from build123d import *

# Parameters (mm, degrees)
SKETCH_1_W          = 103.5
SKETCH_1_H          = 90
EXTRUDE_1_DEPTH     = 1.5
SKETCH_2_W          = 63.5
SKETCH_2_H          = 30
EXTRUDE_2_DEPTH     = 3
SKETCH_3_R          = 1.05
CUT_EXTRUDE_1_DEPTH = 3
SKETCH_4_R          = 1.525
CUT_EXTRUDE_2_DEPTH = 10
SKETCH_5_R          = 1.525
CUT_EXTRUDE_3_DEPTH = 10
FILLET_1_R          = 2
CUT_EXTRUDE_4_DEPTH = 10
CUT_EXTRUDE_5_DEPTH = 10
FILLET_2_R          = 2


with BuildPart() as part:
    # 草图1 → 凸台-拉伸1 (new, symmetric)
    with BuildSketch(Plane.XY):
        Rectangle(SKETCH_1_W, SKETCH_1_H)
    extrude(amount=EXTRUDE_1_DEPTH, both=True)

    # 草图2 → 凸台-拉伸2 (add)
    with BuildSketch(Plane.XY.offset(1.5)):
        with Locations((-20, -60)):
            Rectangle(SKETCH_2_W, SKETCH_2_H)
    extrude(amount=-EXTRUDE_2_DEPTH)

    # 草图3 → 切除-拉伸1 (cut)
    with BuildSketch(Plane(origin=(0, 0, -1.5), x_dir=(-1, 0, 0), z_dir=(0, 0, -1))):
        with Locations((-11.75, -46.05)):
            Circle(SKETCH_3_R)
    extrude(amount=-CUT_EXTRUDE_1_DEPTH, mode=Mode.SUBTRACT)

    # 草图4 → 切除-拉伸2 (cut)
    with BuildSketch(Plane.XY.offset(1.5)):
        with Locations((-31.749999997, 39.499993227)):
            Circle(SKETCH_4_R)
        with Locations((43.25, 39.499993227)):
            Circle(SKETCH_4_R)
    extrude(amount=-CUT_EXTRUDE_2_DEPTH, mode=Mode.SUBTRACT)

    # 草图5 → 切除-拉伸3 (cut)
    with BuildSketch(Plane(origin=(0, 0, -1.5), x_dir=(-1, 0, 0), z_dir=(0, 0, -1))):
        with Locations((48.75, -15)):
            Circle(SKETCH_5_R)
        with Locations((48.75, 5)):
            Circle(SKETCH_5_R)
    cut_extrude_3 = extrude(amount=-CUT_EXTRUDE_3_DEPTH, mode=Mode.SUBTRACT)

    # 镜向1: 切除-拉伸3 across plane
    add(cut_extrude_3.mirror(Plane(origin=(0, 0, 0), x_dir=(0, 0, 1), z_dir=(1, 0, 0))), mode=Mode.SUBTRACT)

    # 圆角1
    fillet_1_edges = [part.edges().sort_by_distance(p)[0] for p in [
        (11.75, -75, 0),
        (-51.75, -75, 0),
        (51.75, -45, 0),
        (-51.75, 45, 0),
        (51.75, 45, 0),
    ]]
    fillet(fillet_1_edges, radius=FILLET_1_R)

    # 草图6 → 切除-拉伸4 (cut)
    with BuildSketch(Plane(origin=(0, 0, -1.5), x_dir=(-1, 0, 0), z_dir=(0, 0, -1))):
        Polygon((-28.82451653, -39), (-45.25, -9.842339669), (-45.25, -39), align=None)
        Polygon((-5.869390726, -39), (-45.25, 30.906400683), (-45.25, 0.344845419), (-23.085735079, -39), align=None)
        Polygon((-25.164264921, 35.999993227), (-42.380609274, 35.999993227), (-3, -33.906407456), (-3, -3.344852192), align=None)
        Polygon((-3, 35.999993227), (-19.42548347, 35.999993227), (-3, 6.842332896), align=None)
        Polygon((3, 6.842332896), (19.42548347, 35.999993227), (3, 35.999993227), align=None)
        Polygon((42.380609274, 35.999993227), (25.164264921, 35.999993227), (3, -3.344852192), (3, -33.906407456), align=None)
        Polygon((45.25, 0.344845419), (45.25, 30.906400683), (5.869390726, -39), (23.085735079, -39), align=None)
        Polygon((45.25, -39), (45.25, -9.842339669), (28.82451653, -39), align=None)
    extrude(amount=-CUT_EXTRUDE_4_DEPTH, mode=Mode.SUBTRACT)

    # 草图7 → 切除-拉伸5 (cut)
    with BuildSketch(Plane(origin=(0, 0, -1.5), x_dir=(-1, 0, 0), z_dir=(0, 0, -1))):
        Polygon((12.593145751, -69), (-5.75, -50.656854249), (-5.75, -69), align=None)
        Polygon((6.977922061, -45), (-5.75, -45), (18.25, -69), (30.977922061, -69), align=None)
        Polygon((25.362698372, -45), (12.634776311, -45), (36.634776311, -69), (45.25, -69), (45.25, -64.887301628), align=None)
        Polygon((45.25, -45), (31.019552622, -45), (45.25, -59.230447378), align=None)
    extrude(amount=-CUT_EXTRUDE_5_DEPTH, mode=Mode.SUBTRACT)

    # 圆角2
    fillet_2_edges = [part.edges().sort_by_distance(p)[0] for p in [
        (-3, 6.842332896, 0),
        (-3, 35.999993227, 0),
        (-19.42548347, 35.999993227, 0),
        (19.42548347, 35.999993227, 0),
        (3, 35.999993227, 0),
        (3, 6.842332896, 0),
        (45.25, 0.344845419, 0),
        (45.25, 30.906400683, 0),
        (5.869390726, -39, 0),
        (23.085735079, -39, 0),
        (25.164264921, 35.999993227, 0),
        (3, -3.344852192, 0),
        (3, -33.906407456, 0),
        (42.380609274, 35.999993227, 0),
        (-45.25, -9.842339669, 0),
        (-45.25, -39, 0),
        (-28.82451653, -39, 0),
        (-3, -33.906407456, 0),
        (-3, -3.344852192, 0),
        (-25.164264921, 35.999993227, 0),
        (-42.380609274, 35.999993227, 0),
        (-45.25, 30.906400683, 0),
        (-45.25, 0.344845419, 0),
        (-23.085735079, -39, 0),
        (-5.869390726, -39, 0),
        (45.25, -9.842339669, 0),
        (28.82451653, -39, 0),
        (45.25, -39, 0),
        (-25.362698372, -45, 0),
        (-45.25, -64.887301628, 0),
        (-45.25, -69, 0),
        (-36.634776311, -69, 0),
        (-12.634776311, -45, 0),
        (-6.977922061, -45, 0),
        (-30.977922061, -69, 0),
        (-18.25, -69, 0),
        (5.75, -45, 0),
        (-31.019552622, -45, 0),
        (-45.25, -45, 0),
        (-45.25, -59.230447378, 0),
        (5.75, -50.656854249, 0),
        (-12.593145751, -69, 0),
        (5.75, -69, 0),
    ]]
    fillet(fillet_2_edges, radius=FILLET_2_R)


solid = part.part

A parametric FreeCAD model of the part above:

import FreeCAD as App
import Part
import Sketcher
from FreeCAD import Vector


def edges_at(feature, points):
    """Names of the edges that pass closest to the given points."""
    edges = feature.Shape.Edges
    near = lambda p: min(range(len(edges)), key=lambda i: edges[i].distToShape(Part.Vertex(*p))[0])
    return sorted({f"Edge{near(p) + 1}" for p in points})

doc = App.newDocument("Part")
body = doc.addObject("PartDesign::Body", "Body")

sketch1 = body.newObject("Sketcher::SketchObject", "Sketch")
sketch1.AttachmentSupport = (doc.getObject("XY_Plane"), [""])
sketch1.MapMode = "FlatFace"
sketch1.addGeometry(Part.LineSegment(Vector(-51.75, 45, 0), Vector(-51.75, -45, 0)), False)
sketch1.addGeometry(Part.LineSegment(Vector(-51.75, -45, 0), Vector(51.75, -45, 0)), False)
sketch1.addGeometry(Part.LineSegment(Vector(51.75, -45, 0), Vector(51.75, 45, 0)), False)
sketch1.addGeometry(Part.LineSegment(Vector(51.75, 45, 0), Vector(-51.75, 45, 0)), False)
sketch1.addConstraint(Sketcher.Constraint("Coincident", 0, 2, 1, 1))
sketch1.addConstraint(Sketcher.Constraint("Coincident", 1, 2, 2, 1))
sketch1.addConstraint(Sketcher.Constraint("Coincident", 2, 2, 3, 1))
sketch1.addConstraint(Sketcher.Constraint("Coincident", 3, 2, 0, 1))
sketch1.addConstraint(Sketcher.Constraint("Vertical", 0))
sketch1.addConstraint(Sketcher.Constraint("Horizontal", 1))
sketch1.addConstraint(Sketcher.Constraint("Vertical", 2))
sketch1.addConstraint(Sketcher.Constraint("Horizontal", 3))
sketch1.addConstraint(Sketcher.Constraint("Symmetric", 0, 2, 2, 2, -1, 1))
sketch1.addConstraint(Sketcher.Constraint("DistanceY", 0, 2, 0, 1, 90.0))
sketch1.addConstraint(Sketcher.Constraint("DistanceX", 1, 1, 1, 2, 103.5))
pad1 = body.newObject("PartDesign::Pad", "Pad")
pad1.Profile = sketch1
pad1.Length = 3
pad1.Midplane = True

sketch2 = body.newObject("Sketcher::SketchObject", "Sketch001")
sketch2.AttachmentSupport = (doc.getObject("XY_Plane"), [""])
sketch2.MapMode = "FlatFace"
sketch2.AttachmentOffset = App.Placement(Vector(0, 0, 1.5), App.Rotation())
sketch2.addGeometry(Part.LineSegment(Vector(-51.75, -45, 0), Vector(-51.75, -75, 0)), False)
sketch2.addGeometry(Part.LineSegment(Vector(-51.75, -75, 0), Vector(11.75, -75, 0)), False)
sketch2.addGeometry(Part.LineSegment(Vector(11.75, -75, 0), Vector(11.75, -45, 0)), False)
sketch2.addGeometry(Part.LineSegment(Vector(11.75, -45, 0), Vector(-51.75, -45, 0)), False)
sketch2.addConstraint(Sketcher.Constraint("Coincident", 0, 2, 1, 1))
sketch2.addConstraint(Sketcher.Constraint("Coincident", 1, 2, 2, 1))
sketch2.addConstraint(Sketcher.Constraint("Coincident", 2, 2, 3, 1))
sketch2.addConstraint(Sketcher.Constraint("Coincident", 3, 2, 0, 1))
sketch2.addConstraint(Sketcher.Constraint("Vertical", 0))
sketch2.addConstraint(Sketcher.Constraint("Horizontal", 1))
sketch2.addConstraint(Sketcher.Constraint("Vertical", 2))
sketch2.addConstraint(Sketcher.Constraint("Horizontal", 3))
sketch2.addConstraint(Sketcher.Constraint("DistanceY", 0, 2, 0, 1, 30.0))
sketch2.addConstraint(Sketcher.Constraint("DistanceX", 1, 1, 1, 2, 63.5))
sketch2.addConstraint(Sketcher.Constraint("DistanceY", 0, 2, -1, 1, 75.0))
sketch2.addConstraint(Sketcher.Constraint("DistanceX", 0, 2, -1, 1, 51.75))
pad2 = body.newObject("PartDesign::Pad", "Pad001")
pad2.Profile = sketch2
pad2.Length = 3
pad2.Reversed = True

sketch3 = body.newObject("Sketcher::SketchObject", "Sketch002")
sketch3.AttachmentSupport = (doc.getObject("XY_Plane"), [""])
sketch3.MapMode = "FlatFace"
sketch3.AttachmentOffset = App.Placement(Vector(0, 0, -1.5), App.Rotation())
sketch3.addGeometry(Part.Circle(Vector(11.75, -46.05, 0), Vector(0, 0, 1), 1.05), False)
sketch3.addConstraint(Sketcher.Constraint("Diameter", 0, 2.1))
sketch3.addConstraint(Sketcher.Constraint("DistanceX", -1, 1, 0, 3, 11.75))
sketch3.addConstraint(Sketcher.Constraint("DistanceY", 0, 3, -1, 1, 46.05))
pocket1 = body.newObject("PartDesign::Pocket", "Pocket")
pocket1.Profile = sketch3
pocket1.Length = 3
pocket1.Reversed = True

sketch4 = body.newObject("Sketcher::SketchObject", "Sketch003")
sketch4.AttachmentSupport = (doc.getObject("XY_Plane"), [""])
sketch4.MapMode = "FlatFace"
sketch4.AttachmentOffset = App.Placement(Vector(0, 0, 1.5), App.Rotation())
sketch4.addGeometry(Part.Circle(Vector(-31.75, 39.499993, 0), Vector(0, 0, 1), 1.525), False)
sketch4.addGeometry(Part.Circle(Vector(43.25, 39.499993, 0), Vector(0, 0, 1), 1.525), False)
sketch4.addConstraint(Sketcher.Constraint("Equal", 0, 1))
sketch4.addConstraint(Sketcher.Constraint("Horizontal", 0, 3, 1, 3))
sketch4.addConstraint(Sketcher.Constraint("Diameter", 0, 3.05))
sketch4.addConstraint(Sketcher.Constraint("DistanceX", 0, 3, 1, 3, 75.0))
sketch4.addConstraint(Sketcher.Constraint("DistanceX", 0, 3, -1, 1, 31.75))
sketch4.addConstraint(Sketcher.Constraint("DistanceY", -1, 1, 0, 3, 39.499993))
pocket2 = body.newObject("PartDesign::Pocket", "Pocket001")
pocket2.Profile = sketch4
pocket2.Length = 10

sketch5 = body.newObject("Sketcher::SketchObject", "Sketch004")
sketch5.AttachmentSupport = (doc.getObject("XY_Plane"), [""])
sketch5.MapMode = "FlatFace"
sketch5.AttachmentOffset = App.Placement(Vector(0, 0, -1.5), App.Rotation())
sketch5.addGeometry(Part.Circle(Vector(-48.75, -15, 0), Vector(0, 0, 1), 1.525), False)
sketch5.addGeometry(Part.Circle(Vector(-48.75, 5, 0), Vector(0, 0, 1), 1.525), False)
sketch5.addConstraint(Sketcher.Constraint("Equal", 0, 1))
sketch5.addConstraint(Sketcher.Constraint("Vertical", 0, 3, 1, 3))
sketch5.addConstraint(Sketcher.Constraint("Diameter", 0, 3.05))
sketch5.addConstraint(Sketcher.Constraint("DistanceY", 0, 3, -1, 1, 15.0))
sketch5.addConstraint(Sketcher.Constraint("DistanceY", -1, 1, 1, 3, 5.0))
sketch5.addConstraint(Sketcher.Constraint("DistanceX", 0, 3, -1, 1, 48.75))
pocket3 = body.newObject("PartDesign::Pocket", "Pocket002")
pocket3.Profile = sketch5
pocket3.Length = 10
pocket3.Reversed = True
doc.recompute()

mirrored = body.newObject("PartDesign::Mirrored", "Mirrored")
mirrored.Originals = [pocket3]
mirrored.MirrorPlane = (doc.getObject("YZ_Plane"), [""])
body.Tip = mirrored
doc.recompute()

fillet = body.newObject("PartDesign::Fillet", "Fillet")
fillet.Base = (mirrored, edges_at(mirrored, [
    (11.75, -75, 0),
    (-51.75, -75, 0),
    (51.75, -45, 0),
    (-51.75, 45, 0),
    (51.75, 45, 0),
]))
fillet.Radius = 2

sketch6 = body.newObject("Sketcher::SketchObject", "Sketch005")
sketch6.AttachmentSupport = (doc.getObject("XY_Plane"), [""])
sketch6.MapMode = "FlatFace"
sketch6.AttachmentOffset = App.Placement(Vector(0, 0, -1.5), App.Rotation())
sketch6.addGeometry(Part.LineSegment(Vector(28.824517, -39, 0), Vector(45.25, -9.84234, 0)), False)
sketch6.addGeometry(Part.LineSegment(Vector(45.25, -9.84234, 0), Vector(45.25, -39, 0)), False)
sketch6.addGeometry(Part.LineSegment(Vector(45.25, -39, 0), Vector(28.824517, -39, 0)), False)
sketch6.addGeometry(Part.LineSegment(Vector(5.869391, -39, 0), Vector(45.25, 30.906401, 0)), False)
sketch6.addGeometry(Part.LineSegment(Vector(45.25, 30.906401, 0), Vector(45.25, 0.344845, 0)), False)
sketch6.addGeometry(Part.LineSegment(Vector(45.25, 0.344845, 0), Vector(23.085735, -39, 0)), False)
sketch6.addGeometry(Part.LineSegment(Vector(23.085735, -39, 0), Vector(5.869391, -39, 0)), False)
sketch6.addGeometry(Part.LineSegment(Vector(25.164265, 35.999993, 0), Vector(42.380609, 35.999993, 0)), False)
sketch6.addGeometry(Part.LineSegment(Vector(42.380609, 35.999993, 0), Vector(3, -33.906407, 0)), False)
sketch6.addGeometry(Part.LineSegment(Vector(3, -33.906407, 0), Vector(3, -3.344852, 0)), False)
sketch6.addGeometry(Part.LineSegment(Vector(3, -3.344852, 0), Vector(25.164265, 35.999993, 0)), False)
sketch6.addGeometry(Part.LineSegment(Vector(3, 35.999993, 0), Vector(19.425483, 35.999993, 0)), False)
sketch6.addGeometry(Part.LineSegment(Vector(19.425483, 35.999993, 0), Vector(3, 6.842333, 0)), False)
sketch6.addGeometry(Part.LineSegment(Vector(3, 6.842333, 0), Vector(3, 35.999993, 0)), False)
sketch6.addGeometry(Part.LineSegment(Vector(-3, 6.842333, 0), Vector(-19.425483, 35.999993, 0)), False)
sketch6.addGeometry(Part.LineSegment(Vector(-19.425483, 35.999993, 0), Vector(-3, 35.999993, 0)), False)
sketch6.addGeometry(Part.LineSegment(Vector(-3, 35.999993, 0), Vector(-3, 6.842333, 0)), False)
sketch6.addGeometry(Part.LineSegment(Vector(-42.380609, 35.999993, 0), Vector(-25.164265, 35.999993, 0)), False)
sketch6.addGeometry(Part.LineSegment(Vector(-25.164265, 35.999993, 0), Vector(-3, -3.344852, 0)), False)
sketch6.addGeometry(Part.LineSegment(Vector(-3, -3.344852, 0), Vector(-3, -33.906407, 0)), False)
sketch6.addGeometry(Part.LineSegment(Vector(-3, -33.906407, 0), Vector(-42.380609, 35.999993, 0)), False)
sketch6.addGeometry(Part.LineSegment(Vector(-45.25, 0.344845, 0), Vector(-45.25, 30.906401, 0)), False)
sketch6.addGeometry(Part.LineSegment(Vector(-45.25, 30.906401, 0), Vector(-5.869391, -39, 0)), False)
sketch6.addGeometry(Part.LineSegment(Vector(-5.869391, -39, 0), Vector(-23.085735, -39, 0)), False)
sketch6.addGeometry(Part.LineSegment(Vector(-23.085735, -39, 0), Vector(-45.25, 0.344845, 0)), False)
sketch6.addGeometry(Part.LineSegment(Vector(-45.25, -39, 0), Vector(-45.25, -9.84234, 0)), False)
sketch6.addGeometry(Part.LineSegment(Vector(-45.25, -9.84234, 0), Vector(-28.824517, -39, 0)), False)
sketch6.addGeometry(Part.LineSegment(Vector(-28.824517, -39, 0), Vector(-45.25, -39, 0)), False)
sketch6.addConstraint(Sketcher.Constraint("Coincident", 0, 2, 1, 1))
sketch6.addConstraint(Sketcher.Constraint("Coincident", 1, 2, 2, 1))
sketch6.addConstraint(Sketcher.Constraint("Coincident", 2, 2, 0, 1))
sketch6.addConstraint(Sketcher.Constraint("Coincident", 3, 2, 4, 1))
sketch6.addConstraint(Sketcher.Constraint("Coincident", 4, 2, 5, 1))
sketch6.addConstraint(Sketcher.Constraint("Coincident", 5, 2, 6, 1))
sketch6.addConstraint(Sketcher.Constraint("Coincident", 6, 2, 3, 1))
sketch6.addConstraint(Sketcher.Constraint("Coincident", 7, 2, 8, 1))
sketch6.addConstraint(Sketcher.Constraint("Coincident", 8, 2, 9, 1))
sketch6.addConstraint(Sketcher.Constraint("Coincident", 9, 2, 10, 1))
sketch6.addConstraint(Sketcher.Constraint("Coincident", 10, 2, 7, 1))
sketch6.addConstraint(Sketcher.Constraint("Coincident", 11, 2, 12, 1))
sketch6.addConstraint(Sketcher.Constraint("Coincident", 12, 2, 13, 1))
sketch6.addConstraint(Sketcher.Constraint("Coincident", 13, 2, 11, 1))
sketch6.addConstraint(Sketcher.Constraint("Coincident", 14, 2, 15, 1))
sketch6.addConstraint(Sketcher.Constraint("Coincident", 15, 2, 16, 1))
sketch6.addConstraint(Sketcher.Constraint("Coincident", 16, 2, 14, 1))
sketch6.addConstraint(Sketcher.Constraint("Coincident", 17, 2, 18, 1))
sketch6.addConstraint(Sketcher.Constraint("Coincident", 18, 2, 19, 1))
sketch6.addConstraint(Sketcher.Constraint("Coincident", 19, 2, 20, 1))
sketch6.addConstraint(Sketcher.Constraint("Coincident", 20, 2, 17, 1))
sketch6.addConstraint(Sketcher.Constraint("Coincident", 21, 2, 22, 1))
sketch6.addConstraint(Sketcher.Constraint("Coincident", 22, 2, 23, 1))
sketch6.addConstraint(Sketcher.Constraint("Coincident", 23, 2, 24, 1))
sketch6.addConstraint(Sketcher.Constraint("Coincident", 24, 2, 21, 1))
sketch6.addConstraint(Sketcher.Constraint("Coincident", 25, 2, 26, 1))
sketch6.addConstraint(Sketcher.Constraint("Coincident", 26, 2, 27, 1))
sketch6.addConstraint(Sketcher.Constraint("Coincident", 27, 2, 25, 1))
sketch6.addConstraint(Sketcher.Constraint("Vertical", 1))
sketch6.addConstraint(Sketcher.Constraint("Horizontal", 2))
sketch6.addConstraint(Sketcher.Constraint("Vertical", 4))
sketch6.addConstraint(Sketcher.Constraint("Horizontal", 6))
sketch6.addConstraint(Sketcher.Constraint("Horizontal", 7))
sketch6.addConstraint(Sketcher.Constraint("Vertical", 9))
sketch6.addConstraint(Sketcher.Constraint("Horizontal", 11))
sketch6.addConstraint(Sketcher.Constraint("Vertical", 13))
sketch6.addConstraint(Sketcher.Constraint("Horizontal", 15))
sketch6.addConstraint(Sketcher.Constraint("Vertical", 16))
sketch6.addConstraint(Sketcher.Constraint("Horizontal", 17))
sketch6.addConstraint(Sketcher.Constraint("Vertical", 19))
sketch6.addConstraint(Sketcher.Constraint("Vertical", 21))
sketch6.addConstraint(Sketcher.Constraint("Horizontal", 23))
sketch6.addConstraint(Sketcher.Constraint("Vertical", 25))
sketch6.addConstraint(Sketcher.Constraint("Horizontal", 27))
sketch6.addConstraint(Sketcher.Constraint("Symmetric", 11, 2, 14, 2, -2))
sketch6.addConstraint(Sketcher.Constraint("Symmetric", 12, 2, 16, 2, -2))
sketch6.addConstraint(Sketcher.Constraint("Symmetric", 10, 2, 17, 2, -2))
sketch6.addConstraint(Sketcher.Constraint("Symmetric", 9, 2, 18, 2, -2))
sketch6.addConstraint(Sketcher.Constraint("Symmetric", 3, 2, 21, 2, -2))
sketch6.addConstraint(Sketcher.Constraint("Symmetric", 6, 2, 22, 2, -2))
sketch6.addConstraint(Sketcher.Constraint("Symmetric", 0, 2, 25, 2, -2))
sketch6.addConstraint(Sketcher.Constraint("Symmetric", 2, 2, 26, 2, -2))
sketch6.addConstraint(Sketcher.Constraint("Parallel", 0, 3))
sketch6.addConstraint(Sketcher.Constraint("Parallel", 3, 5))
sketch6.addConstraint(Sketcher.Constraint("Parallel", 5, 8))
sketch6.addConstraint(Sketcher.Constraint("Parallel", 8, 10))
sketch6.addConstraint(Sketcher.Constraint("Parallel", 10, 12))
sketch6.addConstraint(Sketcher.Constraint("Parallel", 18, 20))
sketch6.addConstraint(Sketcher.Constraint("Parallel", 22, 24))
sketch6.addConstraint(Sketcher.Constraint("Horizontal", 2, 2, 5, 2))
sketch6.addConstraint(Sketcher.Constraint("Horizontal", 10, 2, 11, 2))
sketch6.addConstraint(Sketcher.Constraint("Horizontal", 8, 2, 19, 2))
sketch6.addConstraint(Sketcher.Constraint("Horizontal", 4, 2, 24, 2))
sketch6.addConstraint(Sketcher.Constraint("Vertical", 1, 2, 3, 2))
sketch6.addConstraint(Sketcher.Constraint("Vertical", 9, 2, 12, 2))
sketch6.addConstraint(Sketcher.Constraint("Equal", 6, 7))
sketch6.addConstraint(Sketcher.Constraint("Equal", 2, 11))
sketch6.addConstraint(Sketcher.Constraint("Equal", 3, 8))
sketch6.addConstraint(Sketcher.Constraint("DistanceY", 1, 2, -1, 1, 39.0))
sketch6.addConstraint(Sketcher.Constraint("DistanceX", -1, 1, 8, 2, 3.0))
sketch6.addConstraint(Sketcher.Constraint("DistanceX", -1, 1, 0, 2, 45.25))
sketch6.addConstraint(Sketcher.Constraint("DistanceY", 1, 2, 1, 1, 29.15766))
sketch6.addConstraint(Sketcher.Constraint("DistanceY", -1, 1, 3, 2, 30.906401))
sketch6.addConstraint(Sketcher.Constraint("Distance", 0, 33.465888))
sketch6.addConstraint(Sketcher.Constraint("DistanceX", 6, 2, 6, 1, 17.216344))
sketch6.addConstraint(Sketcher.Constraint("DistanceY", -1, 1, 7, 2, 35.999993))
pocket4 = body.newObject("PartDesign::Pocket", "Pocket003")
pocket4.Profile = sketch6
pocket4.Length = 10
pocket4.Reversed = True

sketch7 = body.newObject("Sketcher::SketchObject", "Sketch006")
sketch7.AttachmentSupport = (doc.getObject("XY_Plane"), [""])
sketch7.MapMode = "FlatFace"
sketch7.AttachmentOffset = App.Placement(Vector(0, 0, -1.5), App.Rotation())
sketch7.addGeometry(Part.LineSegment(Vector(-12.593146, -69, 0), Vector(5.75, -50.656854, 0)), False)
sketch7.addGeometry(Part.LineSegment(Vector(5.75, -50.656854, 0), Vector(5.75, -69, 0)), False)
sketch7.addGeometry(Part.LineSegment(Vector(5.75, -69, 0), Vector(-12.593146, -69, 0)), False)
sketch7.addGeometry(Part.LineSegment(Vector(-6.977922, -45, 0), Vector(5.75, -45, 0)), False)
sketch7.addGeometry(Part.LineSegment(Vector(5.75, -45, 0), Vector(-18.25, -69, 0)), False)
sketch7.addGeometry(Part.LineSegment(Vector(-18.25, -69, 0), Vector(-30.977922, -69, 0)), False)
sketch7.addGeometry(Part.LineSegment(Vector(-30.977922, -69, 0), Vector(-6.977922, -45, 0)), False)
sketch7.addGeometry(Part.LineSegment(Vector(-25.362698, -45, 0), Vector(-12.634776, -45, 0)), False)
sketch7.addGeometry(Part.LineSegment(Vector(-12.634776, -45, 0), Vector(-36.634776, -69, 0)), False)
sketch7.addGeometry(Part.LineSegment(Vector(-36.634776, -69, 0), Vector(-45.25, -69, 0)), False)
sketch7.addGeometry(Part.LineSegment(Vector(-45.25, -69, 0), Vector(-45.25, -64.887302, 0)), False)
sketch7.addGeometry(Part.LineSegment(Vector(-45.25, -64.887302, 0), Vector(-25.362698, -45, 0)), False)
sketch7.addGeometry(Part.LineSegment(Vector(-45.25, -45, 0), Vector(-31.019553, -45, 0)), False)
sketch7.addGeometry(Part.LineSegment(Vector(-31.019553, -45, 0), Vector(-45.25, -59.230447, 0)), False)
sketch7.addGeometry(Part.LineSegment(Vector(-45.25, -59.230447, 0), Vector(-45.25, -45, 0)), False)
sketch7.addConstraint(Sketcher.Constraint("Coincident", 0, 2, 1, 1))
sketch7.addConstraint(Sketcher.Constraint("Coincident", 1, 2, 2, 1))
sketch7.addConstraint(Sketcher.Constraint("Coincident", 2, 2, 0, 1))
sketch7.addConstraint(Sketcher.Constraint("Coincident", 3, 2, 4, 1))
sketch7.addConstraint(Sketcher.Constraint("Coincident", 4, 2, 5, 1))
sketch7.addConstraint(Sketcher.Constraint("Coincident", 5, 2, 6, 1))
sketch7.addConstraint(Sketcher.Constraint("Coincident", 6, 2, 3, 1))
sketch7.addConstraint(Sketcher.Constraint("Coincident", 7, 2, 8, 1))
sketch7.addConstraint(Sketcher.Constraint("Coincident", 8, 2, 9, 1))
sketch7.addConstraint(Sketcher.Constraint("Coincident", 9, 2, 10, 1))
sketch7.addConstraint(Sketcher.Constraint("Coincident", 10, 2, 11, 1))
sketch7.addConstraint(Sketcher.Constraint("Coincident", 11, 2, 7, 1))
sketch7.addConstraint(Sketcher.Constraint("Coincident", 12, 2, 13, 1))
sketch7.addConstraint(Sketcher.Constraint("Coincident", 13, 2, 14, 1))
sketch7.addConstraint(Sketcher.Constraint("Coincident", 14, 2, 12, 1))
sketch7.addConstraint(Sketcher.Constraint("Vertical", 1))
sketch7.addConstraint(Sketcher.Constraint("Horizontal", 2))
sketch7.addConstraint(Sketcher.Constraint("Horizontal", 3))
sketch7.addConstraint(Sketcher.Constraint("Horizontal", 5))
sketch7.addConstraint(Sketcher.Constraint("Horizontal", 7))
sketch7.addConstraint(Sketcher.Constraint("Horizontal", 9))
sketch7.addConstraint(Sketcher.Constraint("Vertical", 10))
sketch7.addConstraint(Sketcher.Constraint("Horizontal", 12))
sketch7.addConstraint(Sketcher.Constraint("Vertical", 14))
sketch7.addConstraint(Sketcher.Constraint("Parallel", 0, 4))
sketch7.addConstraint(Sketcher.Constraint("Parallel", 4, 6))
sketch7.addConstraint(Sketcher.Constraint("Parallel", 6, 8))
sketch7.addConstraint(Sketcher.Constraint("Parallel", 8, 11))
sketch7.addConstraint(Sketcher.Constraint("Parallel", 11, 13))
sketch7.addConstraint(Sketcher.Constraint("Horizontal", 2, 2, 4, 2))
sketch7.addConstraint(Sketcher.Constraint("Horizontal", 6, 2, 7, 2))
sketch7.addConstraint(Sketcher.Constraint("Horizontal", 5, 2, 8, 2))
sketch7.addConstraint(Sketcher.Constraint("Horizontal", 11, 2, 12, 2))
sketch7.addConstraint(Sketcher.Constraint("Vertical", 1, 2, 3, 2))
sketch7.addConstraint(Sketcher.Constraint("Vertical", 10, 2, 13, 2))
sketch7.addConstraint(Sketcher.Constraint("Equal", 5, 7))
sketch7.addConstraint(Sketcher.Constraint("Equal", 2, 1))
sketch7.addConstraint(Sketcher.Constraint("DistanceY", 1, 2, -1, 1, 69.0))
sketch7.addConstraint(Sketcher.Constraint("DistanceY", 3, 2, -1, 1, 45.0))
sketch7.addConstraint(Sketcher.Constraint("DistanceX", 9, 2, 4, 2, 27.0))
sketch7.addConstraint(Sketcher.Constraint("DistanceX", -1, 1, 0, 2, 5.75))
sketch7.addConstraint(Sketcher.Constraint("DistanceY", 10, 1, 10, 2, 4.112698))
sketch7.addConstraint(Sketcher.Constraint("Distance", 13, 20.124892))
sketch7.addConstraint(Sketcher.Constraint("DistanceX", 2, 2, 2, 1, 18.343146))
sketch7.addConstraint(Sketcher.Constraint("DistanceX", 3, 1, 3, 2, 12.727922))
pocket5 = body.newObject("PartDesign::Pocket", "Pocket004")
pocket5.Profile = sketch7
pocket5.Length = 10
pocket5.Reversed = True
doc.recompute()

fillet2 = body.newObject("PartDesign::Fillet", "Fillet001")
fillet2.Base = (pocket5, edges_at(pocket5, [
    (-3, 6.842, 0),
    (-3, 36, 0),
    (-19.425, 36, 0),
    (19.425, 36, 0),
    (3, 36, 0),
    (3, 6.842, 0),
    (45.25, 0.345, 0),
    (45.25, 30.906, 0),
    (5.869, -39, 0),
    (23.086, -39, 0),
    (25.164, 36, 0),
    (3, -3.345, 0),
    (3, -33.906, 0),
    (42.381, 36, 0),
    (-45.25, -9.842, 0),
    (-45.25, -39, 0),
    (-28.825, -39, 0),
    (-3, -33.906, 0),
    (-3, -3.345, 0),
    (-25.164, 36, 0),
    (-42.381, 36, 0),
    (-45.25, 30.906, 0),
    (-45.25, 0.345, 0),
    (-23.086, -39, 0),
    (-5.869, -39, 0),
    (45.25, -9.842, 0),
    (28.825, -39, 0),
    (45.25, -39, 0),
    (-25.363, -45, 0),
    (-45.25, -64.887, 0),
    (-45.25, -69, 0),
    (-36.635, -69, 0),
    (-12.635, -45, 0),
    (-6.978, -45, 0),
    (-30.978, -69, 0),
    (-18.25, -69, 0),
    (5.75, -45, 0),
    (-31.02, -45, 0),
    (-45.25, -45, 0),
    (-45.25, -59.23, 0),
    (5.75, -50.657, 0),
    (-12.593, -69, 0),
    (5.75, -69, 0),
]))
fillet2.Radius = 2

doc.recompute()
